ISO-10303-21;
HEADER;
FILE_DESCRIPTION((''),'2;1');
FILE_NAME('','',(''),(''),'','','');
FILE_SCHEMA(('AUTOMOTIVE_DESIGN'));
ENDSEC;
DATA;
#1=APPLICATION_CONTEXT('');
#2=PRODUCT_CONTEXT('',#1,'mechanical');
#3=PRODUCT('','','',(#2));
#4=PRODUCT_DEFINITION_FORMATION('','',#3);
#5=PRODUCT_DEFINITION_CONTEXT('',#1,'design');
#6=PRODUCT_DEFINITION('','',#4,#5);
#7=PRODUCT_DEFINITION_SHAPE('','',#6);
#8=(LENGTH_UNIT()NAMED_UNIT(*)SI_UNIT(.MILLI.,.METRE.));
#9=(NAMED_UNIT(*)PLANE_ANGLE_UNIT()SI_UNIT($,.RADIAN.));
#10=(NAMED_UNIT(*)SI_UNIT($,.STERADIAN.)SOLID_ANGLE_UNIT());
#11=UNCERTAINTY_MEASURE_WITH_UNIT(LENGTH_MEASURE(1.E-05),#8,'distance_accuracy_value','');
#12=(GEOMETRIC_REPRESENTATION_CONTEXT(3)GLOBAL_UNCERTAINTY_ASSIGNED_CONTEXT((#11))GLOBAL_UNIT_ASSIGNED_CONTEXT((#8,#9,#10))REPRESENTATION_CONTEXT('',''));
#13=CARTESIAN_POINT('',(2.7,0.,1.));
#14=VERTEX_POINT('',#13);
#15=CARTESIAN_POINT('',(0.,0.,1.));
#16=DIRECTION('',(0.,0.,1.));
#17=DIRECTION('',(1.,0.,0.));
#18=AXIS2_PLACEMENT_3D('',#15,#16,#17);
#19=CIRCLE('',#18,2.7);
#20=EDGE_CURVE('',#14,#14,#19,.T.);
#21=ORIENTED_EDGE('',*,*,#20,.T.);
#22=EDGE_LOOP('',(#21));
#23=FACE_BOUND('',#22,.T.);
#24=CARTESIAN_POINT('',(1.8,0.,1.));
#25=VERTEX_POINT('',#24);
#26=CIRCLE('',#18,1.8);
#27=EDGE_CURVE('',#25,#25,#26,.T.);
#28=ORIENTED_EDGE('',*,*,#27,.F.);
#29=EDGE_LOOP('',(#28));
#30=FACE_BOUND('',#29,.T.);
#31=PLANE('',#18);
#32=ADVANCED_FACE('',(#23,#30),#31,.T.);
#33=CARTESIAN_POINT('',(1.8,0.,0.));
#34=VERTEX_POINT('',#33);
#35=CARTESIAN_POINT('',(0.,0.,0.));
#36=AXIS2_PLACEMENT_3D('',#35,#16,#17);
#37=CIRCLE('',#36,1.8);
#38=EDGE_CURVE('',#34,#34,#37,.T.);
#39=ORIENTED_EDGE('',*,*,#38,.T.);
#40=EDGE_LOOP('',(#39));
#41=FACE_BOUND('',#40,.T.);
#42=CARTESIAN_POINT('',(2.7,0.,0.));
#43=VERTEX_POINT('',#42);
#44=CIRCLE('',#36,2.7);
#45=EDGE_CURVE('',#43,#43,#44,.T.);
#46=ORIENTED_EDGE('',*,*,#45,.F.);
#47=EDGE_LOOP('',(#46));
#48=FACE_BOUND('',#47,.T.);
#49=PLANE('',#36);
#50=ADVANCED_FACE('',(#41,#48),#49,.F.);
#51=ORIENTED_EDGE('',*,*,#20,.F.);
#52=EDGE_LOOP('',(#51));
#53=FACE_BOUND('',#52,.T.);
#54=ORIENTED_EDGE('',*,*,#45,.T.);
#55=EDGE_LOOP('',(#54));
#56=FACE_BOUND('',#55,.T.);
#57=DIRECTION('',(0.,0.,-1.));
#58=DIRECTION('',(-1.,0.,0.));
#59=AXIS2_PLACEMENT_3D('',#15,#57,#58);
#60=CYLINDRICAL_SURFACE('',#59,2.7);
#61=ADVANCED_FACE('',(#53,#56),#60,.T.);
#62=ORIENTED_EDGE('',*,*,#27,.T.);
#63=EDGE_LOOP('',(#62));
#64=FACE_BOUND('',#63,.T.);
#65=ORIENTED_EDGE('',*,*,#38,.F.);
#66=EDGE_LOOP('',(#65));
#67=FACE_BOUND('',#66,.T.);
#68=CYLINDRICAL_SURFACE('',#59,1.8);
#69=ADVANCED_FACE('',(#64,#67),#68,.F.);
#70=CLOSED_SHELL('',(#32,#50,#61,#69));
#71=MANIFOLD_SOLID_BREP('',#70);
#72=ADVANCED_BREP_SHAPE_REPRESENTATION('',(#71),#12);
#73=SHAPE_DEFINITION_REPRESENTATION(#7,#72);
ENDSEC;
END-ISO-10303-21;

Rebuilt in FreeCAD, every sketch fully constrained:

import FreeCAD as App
import Part
import Sketcher

V = App.Vector

doc = App.newDocument("Part")
body = doc.addObject("PartDesign::Body", "Body")

# Sketch on XY plane
sketch1 = doc.addObject("Sketcher::SketchObject", "Sketch")
body.addObject(sketch1)
sketch1.AttachmentSupport = (doc.XY_Plane, [""])
sketch1.MapMode = "FlatFace"
sketch1.addGeometry([
    Part.Circle(V(0, 0, 0), V(0, 0, 1), 2.7),
    Part.Circle(V(0, 0, 0), V(0, 0, 1), 1.8),
], False)
sketch1.addConstraint([
    Sketcher.Constraint("Coincident", 0, 3, -1, 1),
    Sketcher.Constraint("Coincident", 1, 3, -1, 1),
    Sketcher.Constraint("Diameter", 0, 5.4),
    Sketcher.Constraint("Diameter", 1, 3.6),
])
pad1 = doc.addObject("PartDesign::Pad", "Pad")
body.addObject(pad1)
pad1.Profile = sketch1
pad1.Length = 1

doc.recompute()
